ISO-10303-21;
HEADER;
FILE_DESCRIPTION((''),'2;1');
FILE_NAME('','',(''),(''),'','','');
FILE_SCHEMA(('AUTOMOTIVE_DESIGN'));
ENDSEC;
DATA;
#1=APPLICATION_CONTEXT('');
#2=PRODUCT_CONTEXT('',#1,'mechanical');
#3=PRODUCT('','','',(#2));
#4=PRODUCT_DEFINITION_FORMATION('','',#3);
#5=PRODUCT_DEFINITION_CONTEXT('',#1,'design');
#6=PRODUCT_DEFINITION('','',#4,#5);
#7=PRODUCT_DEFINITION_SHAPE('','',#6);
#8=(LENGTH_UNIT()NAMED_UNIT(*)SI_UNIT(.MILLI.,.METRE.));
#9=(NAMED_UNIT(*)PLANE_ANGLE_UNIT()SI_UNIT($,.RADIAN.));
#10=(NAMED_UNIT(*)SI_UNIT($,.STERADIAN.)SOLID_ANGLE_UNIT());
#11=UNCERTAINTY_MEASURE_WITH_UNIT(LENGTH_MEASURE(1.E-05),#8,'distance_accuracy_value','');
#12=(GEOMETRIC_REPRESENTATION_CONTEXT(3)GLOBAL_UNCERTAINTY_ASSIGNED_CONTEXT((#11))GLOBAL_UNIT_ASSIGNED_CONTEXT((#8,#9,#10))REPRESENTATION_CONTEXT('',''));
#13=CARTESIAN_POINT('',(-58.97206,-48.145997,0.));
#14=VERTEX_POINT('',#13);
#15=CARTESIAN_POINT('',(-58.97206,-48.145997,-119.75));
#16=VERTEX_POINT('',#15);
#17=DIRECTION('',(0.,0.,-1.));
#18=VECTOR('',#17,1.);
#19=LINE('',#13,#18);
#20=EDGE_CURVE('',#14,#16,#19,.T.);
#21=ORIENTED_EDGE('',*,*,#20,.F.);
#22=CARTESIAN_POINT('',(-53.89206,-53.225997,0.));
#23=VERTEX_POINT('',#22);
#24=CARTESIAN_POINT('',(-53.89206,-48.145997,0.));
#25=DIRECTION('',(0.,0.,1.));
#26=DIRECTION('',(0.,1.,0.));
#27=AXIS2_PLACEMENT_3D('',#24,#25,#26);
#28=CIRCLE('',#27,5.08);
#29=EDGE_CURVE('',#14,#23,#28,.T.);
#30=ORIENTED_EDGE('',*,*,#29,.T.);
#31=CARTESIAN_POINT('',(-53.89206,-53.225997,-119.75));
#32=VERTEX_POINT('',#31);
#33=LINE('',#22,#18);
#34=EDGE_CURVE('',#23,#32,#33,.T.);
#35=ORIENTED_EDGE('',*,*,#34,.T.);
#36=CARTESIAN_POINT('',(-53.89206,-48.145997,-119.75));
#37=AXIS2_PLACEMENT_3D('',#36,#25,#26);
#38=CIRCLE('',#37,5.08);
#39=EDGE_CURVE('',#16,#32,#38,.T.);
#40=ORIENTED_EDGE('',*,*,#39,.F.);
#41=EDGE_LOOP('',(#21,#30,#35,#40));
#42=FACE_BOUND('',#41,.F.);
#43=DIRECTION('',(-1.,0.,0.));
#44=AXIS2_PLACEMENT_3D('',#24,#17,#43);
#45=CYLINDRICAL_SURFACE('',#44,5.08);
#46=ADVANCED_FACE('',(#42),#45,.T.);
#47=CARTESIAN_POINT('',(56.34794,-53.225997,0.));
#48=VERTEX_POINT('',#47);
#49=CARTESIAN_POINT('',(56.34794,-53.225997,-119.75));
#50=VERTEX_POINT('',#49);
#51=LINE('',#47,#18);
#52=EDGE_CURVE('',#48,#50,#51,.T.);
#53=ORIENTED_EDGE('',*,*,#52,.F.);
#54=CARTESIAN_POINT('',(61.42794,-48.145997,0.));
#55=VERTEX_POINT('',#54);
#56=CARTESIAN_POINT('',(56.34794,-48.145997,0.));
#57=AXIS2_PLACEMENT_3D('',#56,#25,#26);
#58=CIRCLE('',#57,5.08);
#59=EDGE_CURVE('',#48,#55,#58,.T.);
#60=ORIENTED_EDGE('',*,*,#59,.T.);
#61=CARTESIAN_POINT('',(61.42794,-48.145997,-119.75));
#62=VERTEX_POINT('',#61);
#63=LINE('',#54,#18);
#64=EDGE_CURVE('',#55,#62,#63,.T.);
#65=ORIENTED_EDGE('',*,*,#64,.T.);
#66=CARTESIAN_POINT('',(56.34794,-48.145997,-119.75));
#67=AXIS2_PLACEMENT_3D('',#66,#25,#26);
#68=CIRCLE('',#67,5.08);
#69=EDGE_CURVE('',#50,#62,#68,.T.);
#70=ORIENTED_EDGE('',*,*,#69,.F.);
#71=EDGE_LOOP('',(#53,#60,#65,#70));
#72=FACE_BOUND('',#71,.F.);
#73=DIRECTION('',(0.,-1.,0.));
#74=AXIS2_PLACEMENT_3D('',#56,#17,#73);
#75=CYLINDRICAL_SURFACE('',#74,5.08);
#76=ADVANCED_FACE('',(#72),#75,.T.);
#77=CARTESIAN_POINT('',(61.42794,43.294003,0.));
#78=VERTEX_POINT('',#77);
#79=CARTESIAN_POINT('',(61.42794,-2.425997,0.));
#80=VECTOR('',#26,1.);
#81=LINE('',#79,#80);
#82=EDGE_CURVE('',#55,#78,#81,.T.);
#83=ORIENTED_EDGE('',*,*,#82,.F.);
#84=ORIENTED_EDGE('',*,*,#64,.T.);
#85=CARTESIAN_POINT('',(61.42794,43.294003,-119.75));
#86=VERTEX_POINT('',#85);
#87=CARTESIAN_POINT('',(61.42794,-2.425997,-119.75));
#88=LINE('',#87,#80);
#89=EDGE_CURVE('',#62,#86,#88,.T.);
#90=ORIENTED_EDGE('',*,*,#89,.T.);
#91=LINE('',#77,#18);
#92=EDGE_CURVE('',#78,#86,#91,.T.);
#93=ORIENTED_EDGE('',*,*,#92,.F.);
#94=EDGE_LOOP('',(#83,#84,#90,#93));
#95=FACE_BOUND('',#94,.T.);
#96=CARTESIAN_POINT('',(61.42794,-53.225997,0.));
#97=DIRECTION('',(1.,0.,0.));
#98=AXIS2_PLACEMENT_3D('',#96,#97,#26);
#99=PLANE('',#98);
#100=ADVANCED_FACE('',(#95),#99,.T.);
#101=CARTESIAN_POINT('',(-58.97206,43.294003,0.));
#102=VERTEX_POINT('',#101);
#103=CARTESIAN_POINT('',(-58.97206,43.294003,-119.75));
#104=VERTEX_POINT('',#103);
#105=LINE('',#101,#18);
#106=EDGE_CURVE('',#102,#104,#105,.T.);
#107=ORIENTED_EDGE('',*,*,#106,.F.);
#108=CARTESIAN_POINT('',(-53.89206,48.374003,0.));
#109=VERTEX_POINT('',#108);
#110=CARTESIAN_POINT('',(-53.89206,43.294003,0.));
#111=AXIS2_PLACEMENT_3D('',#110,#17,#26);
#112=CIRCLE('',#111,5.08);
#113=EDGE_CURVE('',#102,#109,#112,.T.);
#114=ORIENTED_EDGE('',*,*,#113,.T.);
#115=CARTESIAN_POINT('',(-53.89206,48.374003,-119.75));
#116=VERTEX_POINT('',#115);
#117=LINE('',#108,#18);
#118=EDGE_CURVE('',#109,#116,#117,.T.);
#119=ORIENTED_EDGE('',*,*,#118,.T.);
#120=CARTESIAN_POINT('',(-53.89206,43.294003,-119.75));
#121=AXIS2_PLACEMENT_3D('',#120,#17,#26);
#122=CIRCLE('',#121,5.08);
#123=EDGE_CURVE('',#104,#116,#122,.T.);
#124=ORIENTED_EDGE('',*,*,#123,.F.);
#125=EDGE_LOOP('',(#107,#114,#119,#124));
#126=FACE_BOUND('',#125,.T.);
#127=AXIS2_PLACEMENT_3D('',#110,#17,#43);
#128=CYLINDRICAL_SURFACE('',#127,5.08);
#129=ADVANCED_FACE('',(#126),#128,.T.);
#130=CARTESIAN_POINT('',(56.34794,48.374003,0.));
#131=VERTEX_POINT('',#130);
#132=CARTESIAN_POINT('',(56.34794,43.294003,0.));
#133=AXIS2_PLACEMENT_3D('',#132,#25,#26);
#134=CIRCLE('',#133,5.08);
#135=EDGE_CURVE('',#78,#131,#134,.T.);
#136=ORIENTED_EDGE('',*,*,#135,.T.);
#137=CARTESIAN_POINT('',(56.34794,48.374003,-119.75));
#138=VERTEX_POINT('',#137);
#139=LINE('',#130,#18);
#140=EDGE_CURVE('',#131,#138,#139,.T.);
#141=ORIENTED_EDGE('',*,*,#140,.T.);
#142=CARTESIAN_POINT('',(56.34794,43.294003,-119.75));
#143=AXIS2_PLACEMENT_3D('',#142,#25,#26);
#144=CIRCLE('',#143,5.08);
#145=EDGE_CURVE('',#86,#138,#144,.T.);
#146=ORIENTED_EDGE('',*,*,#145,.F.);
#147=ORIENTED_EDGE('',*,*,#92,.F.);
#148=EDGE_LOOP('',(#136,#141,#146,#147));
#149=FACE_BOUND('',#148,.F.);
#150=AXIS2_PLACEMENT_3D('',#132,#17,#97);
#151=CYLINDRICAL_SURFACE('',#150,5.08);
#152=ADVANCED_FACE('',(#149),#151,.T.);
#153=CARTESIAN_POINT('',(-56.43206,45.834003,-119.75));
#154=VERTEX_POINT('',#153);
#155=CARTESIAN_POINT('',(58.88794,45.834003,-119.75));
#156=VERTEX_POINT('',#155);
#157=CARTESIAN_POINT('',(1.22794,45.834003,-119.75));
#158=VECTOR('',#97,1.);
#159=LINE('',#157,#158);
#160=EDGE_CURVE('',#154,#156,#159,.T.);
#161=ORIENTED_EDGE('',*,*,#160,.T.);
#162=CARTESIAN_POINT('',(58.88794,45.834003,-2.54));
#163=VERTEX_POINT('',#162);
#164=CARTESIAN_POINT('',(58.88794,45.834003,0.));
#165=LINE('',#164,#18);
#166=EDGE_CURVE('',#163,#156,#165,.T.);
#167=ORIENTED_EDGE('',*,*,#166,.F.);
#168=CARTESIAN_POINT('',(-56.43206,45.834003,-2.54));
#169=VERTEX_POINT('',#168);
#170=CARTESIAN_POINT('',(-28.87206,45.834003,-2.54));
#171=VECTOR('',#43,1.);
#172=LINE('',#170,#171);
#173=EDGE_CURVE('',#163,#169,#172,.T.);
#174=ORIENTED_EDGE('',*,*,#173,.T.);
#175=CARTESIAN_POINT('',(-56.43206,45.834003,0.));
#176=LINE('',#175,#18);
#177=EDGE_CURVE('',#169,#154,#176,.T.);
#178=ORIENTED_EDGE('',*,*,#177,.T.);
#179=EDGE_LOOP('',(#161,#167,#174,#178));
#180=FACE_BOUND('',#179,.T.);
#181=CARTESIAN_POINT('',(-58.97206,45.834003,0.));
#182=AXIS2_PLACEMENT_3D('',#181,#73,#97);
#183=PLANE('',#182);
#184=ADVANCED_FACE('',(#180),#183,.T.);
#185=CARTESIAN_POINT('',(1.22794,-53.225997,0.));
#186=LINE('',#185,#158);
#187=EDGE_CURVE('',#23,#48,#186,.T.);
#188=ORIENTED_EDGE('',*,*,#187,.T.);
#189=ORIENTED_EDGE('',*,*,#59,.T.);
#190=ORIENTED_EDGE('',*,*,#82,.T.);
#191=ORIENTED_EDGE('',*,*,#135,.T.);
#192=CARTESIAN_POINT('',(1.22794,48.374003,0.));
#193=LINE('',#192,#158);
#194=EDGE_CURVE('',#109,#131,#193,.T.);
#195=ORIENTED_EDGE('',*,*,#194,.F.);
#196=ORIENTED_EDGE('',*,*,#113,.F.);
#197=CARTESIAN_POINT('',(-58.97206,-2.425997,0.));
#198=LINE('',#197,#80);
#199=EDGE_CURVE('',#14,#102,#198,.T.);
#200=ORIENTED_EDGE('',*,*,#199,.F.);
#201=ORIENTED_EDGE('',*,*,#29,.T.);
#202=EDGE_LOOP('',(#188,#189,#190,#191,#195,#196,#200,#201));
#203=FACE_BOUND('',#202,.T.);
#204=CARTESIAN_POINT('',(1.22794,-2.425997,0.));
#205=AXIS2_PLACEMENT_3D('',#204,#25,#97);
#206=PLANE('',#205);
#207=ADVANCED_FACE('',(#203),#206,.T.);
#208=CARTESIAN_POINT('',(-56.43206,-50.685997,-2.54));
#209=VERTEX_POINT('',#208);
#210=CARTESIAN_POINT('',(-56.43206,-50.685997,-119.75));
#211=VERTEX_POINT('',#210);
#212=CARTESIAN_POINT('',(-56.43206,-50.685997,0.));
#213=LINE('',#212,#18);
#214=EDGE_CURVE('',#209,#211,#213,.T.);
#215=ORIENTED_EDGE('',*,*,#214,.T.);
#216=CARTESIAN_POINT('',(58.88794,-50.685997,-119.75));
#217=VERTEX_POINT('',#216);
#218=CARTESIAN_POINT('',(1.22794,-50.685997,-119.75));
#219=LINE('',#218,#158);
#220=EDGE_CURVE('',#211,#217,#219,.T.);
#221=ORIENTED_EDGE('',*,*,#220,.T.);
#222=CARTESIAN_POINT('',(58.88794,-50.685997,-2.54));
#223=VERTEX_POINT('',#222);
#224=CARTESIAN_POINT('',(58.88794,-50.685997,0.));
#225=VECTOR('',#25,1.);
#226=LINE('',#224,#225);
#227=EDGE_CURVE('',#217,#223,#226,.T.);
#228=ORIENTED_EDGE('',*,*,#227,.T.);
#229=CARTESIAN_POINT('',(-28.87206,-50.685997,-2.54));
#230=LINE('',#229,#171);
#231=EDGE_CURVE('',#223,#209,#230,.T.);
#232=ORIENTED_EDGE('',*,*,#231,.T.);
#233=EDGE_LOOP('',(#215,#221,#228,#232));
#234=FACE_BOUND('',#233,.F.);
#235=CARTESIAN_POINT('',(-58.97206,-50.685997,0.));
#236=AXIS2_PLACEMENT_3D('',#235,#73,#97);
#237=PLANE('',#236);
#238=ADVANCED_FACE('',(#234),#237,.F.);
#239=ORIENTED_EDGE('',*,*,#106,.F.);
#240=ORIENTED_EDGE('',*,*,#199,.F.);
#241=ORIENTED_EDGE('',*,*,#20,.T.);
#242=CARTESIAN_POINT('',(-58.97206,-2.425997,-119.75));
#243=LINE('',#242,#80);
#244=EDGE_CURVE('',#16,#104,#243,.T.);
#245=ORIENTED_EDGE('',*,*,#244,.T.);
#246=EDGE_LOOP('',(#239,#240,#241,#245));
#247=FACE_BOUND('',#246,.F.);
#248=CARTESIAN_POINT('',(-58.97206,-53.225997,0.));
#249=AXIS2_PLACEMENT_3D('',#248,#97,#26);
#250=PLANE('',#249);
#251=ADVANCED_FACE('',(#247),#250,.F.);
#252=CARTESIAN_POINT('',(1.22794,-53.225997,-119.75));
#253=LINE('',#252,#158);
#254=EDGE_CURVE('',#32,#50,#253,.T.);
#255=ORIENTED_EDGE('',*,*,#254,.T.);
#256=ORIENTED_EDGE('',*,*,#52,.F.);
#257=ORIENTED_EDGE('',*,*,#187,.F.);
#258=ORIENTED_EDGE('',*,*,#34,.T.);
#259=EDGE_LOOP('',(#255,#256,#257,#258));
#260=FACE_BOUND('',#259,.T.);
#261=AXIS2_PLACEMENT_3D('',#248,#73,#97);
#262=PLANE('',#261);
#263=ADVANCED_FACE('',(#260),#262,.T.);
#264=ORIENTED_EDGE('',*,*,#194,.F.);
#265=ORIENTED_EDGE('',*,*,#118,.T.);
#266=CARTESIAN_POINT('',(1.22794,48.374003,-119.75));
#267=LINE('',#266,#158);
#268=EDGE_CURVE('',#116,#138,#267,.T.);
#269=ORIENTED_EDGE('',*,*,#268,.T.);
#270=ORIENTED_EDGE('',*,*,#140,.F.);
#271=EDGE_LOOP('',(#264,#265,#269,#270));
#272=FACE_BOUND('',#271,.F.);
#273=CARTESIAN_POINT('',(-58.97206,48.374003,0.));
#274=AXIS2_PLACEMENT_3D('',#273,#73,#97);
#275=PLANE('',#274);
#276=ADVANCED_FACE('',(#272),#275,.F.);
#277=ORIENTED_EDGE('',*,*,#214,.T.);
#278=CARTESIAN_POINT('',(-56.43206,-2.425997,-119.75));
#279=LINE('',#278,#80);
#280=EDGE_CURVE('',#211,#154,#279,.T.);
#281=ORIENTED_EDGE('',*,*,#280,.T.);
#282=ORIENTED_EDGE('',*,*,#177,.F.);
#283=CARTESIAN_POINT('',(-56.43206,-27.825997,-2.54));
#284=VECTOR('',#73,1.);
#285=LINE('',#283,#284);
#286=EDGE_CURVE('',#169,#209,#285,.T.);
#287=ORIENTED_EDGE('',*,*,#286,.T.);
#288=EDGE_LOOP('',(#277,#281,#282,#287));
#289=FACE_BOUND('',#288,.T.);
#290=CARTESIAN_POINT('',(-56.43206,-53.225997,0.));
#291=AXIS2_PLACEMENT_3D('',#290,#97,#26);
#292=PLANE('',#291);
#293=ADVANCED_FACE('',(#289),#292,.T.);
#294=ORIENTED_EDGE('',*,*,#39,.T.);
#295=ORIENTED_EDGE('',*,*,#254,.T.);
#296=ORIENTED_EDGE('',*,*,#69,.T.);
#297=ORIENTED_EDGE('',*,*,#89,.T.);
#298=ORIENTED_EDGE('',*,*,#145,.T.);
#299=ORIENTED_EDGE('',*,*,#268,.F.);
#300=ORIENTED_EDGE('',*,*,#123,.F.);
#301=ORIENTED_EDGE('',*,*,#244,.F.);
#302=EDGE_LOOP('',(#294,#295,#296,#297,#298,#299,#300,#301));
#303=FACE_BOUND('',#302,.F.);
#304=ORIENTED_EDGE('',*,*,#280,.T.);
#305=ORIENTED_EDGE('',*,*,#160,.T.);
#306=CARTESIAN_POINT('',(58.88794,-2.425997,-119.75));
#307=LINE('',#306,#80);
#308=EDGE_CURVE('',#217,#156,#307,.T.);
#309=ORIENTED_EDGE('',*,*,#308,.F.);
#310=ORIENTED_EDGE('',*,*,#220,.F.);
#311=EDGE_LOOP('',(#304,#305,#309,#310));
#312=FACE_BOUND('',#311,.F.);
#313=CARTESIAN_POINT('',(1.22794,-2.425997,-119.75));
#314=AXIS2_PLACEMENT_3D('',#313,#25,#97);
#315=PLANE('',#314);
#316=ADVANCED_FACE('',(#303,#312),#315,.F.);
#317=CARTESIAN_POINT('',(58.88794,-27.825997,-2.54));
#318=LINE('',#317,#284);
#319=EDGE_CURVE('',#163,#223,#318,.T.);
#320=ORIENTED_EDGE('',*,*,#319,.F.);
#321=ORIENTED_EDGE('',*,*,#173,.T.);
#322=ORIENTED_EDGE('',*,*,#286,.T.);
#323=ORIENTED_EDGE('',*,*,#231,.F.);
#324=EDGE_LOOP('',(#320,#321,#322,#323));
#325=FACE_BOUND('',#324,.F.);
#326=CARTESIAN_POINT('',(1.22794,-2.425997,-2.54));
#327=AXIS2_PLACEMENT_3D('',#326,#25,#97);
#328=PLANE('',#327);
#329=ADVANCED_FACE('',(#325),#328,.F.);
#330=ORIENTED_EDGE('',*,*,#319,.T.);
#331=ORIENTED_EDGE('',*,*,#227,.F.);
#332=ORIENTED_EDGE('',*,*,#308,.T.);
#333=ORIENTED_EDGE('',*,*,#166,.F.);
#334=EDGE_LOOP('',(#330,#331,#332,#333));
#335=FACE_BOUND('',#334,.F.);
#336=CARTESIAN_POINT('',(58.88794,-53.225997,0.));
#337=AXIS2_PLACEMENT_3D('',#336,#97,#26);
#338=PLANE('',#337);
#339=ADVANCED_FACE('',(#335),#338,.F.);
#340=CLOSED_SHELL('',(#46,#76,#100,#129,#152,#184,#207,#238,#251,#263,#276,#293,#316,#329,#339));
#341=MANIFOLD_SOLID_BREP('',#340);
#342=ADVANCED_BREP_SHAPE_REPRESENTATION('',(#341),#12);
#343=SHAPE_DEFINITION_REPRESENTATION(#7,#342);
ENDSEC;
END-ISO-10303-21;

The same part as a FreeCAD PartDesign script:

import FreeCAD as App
import Part
import Sketcher
Q = App.Units.Quantity


def edges_at(feature, points):
    """Names of the edges that pass closest to the given points."""
    edges = feature.Shape.Edges
    near = lambda p: min(range(len(edges)), key=lambda i: edges[i].distToShape(Part.Vertex(*p))[0])
    return sorted({f"Edge{near(p) + 1}" for p in points})


def faces_at(feature, points):
    """Names of the faces that lie closest to the given points."""
    faces = feature.Shape.Faces
    near = lambda p: min(range(len(faces)), key=lambda i: faces[i].distToShape(Part.Vertex(*p))[0])
    return sorted({f"Face{near(p) + 1}" for p in points})

doc = App.newDocument("Part")
body = doc.addObject("PartDesign::Body", "Body")

# Sketch on XY plane
sketch1 = body.newObject("Sketcher::SketchObject", "Sketch")
sketch1.AttachmentSupport = (doc.getObject("XY_Plane"), [""])
sketch1.MapMode = "FlatFace"
sketch1.addGeometry(Part.LineSegment(App.Vector(-59, 48, 0), App.Vector(-59, -53, 0)), False)
sketch1.addGeometry(Part.LineSegment(App.Vector(-59, -53, 0), App.Vector(61, -53, 0)), False)
sketch1.addGeometry(Part.LineSegment(App.Vector(61, -53, 0), App.Vector(61, 48, 0)), False)
sketch1.addGeometry(Part.LineSegment(App.Vector(61, 48, 0), App.Vector(-59, 48, 0)), False)
sketch1.addConstraint(Sketcher.Constraint("Coincident", 0, 2, 1, 1))
sketch1.addConstraint(Sketcher.Constraint("Coincident", 1, 2, 2, 1))
sketch1.addConstraint(Sketcher.Constraint("Coincident", 2, 2, 3, 1))
sketch1.addConstraint(Sketcher.Constraint("Coincident", 3, 2, 0, 1))
sketch1.addConstraint(Sketcher.Constraint("Vertical", 0))
sketch1.addConstraint(Sketcher.Constraint("Horizontal", 1))
sketch1.addConstraint(Sketcher.Constraint("Vertical", 2))
sketch1.addConstraint(Sketcher.Constraint("Horizontal", 3))
sketch1.addConstraint(Sketcher.Constraint("DistanceY", 0, 2, 0, 1, Q("4 in")))
sketch1.addConstraint(Sketcher.Constraint("DistanceX", 1, 1, 1, 2, Q("120.4 mm")))
sketch1.addConstraint(Sketcher.Constraint("DistanceX", 0, 2, -1, 1, Q("58.97206 mm")))
sketch1.addConstraint(Sketcher.Constraint("DistanceY", 0, 2, -1, 1, Q("53.225997 mm")))
pad1 = body.newObject("PartDesign::Pad", "Pad")
pad1.Profile = sketch1
pad1.Length = 119.75
pad1.Reversed = True
doc.recompute()

thickness = body.newObject("PartDesign::Thickness", "Thickness")
thickness.Base = (pad1, faces_at(pad1, [(1.228, -2.426, -119.75)]))
thickness.Value = Q("0.1 in")
thickness.Reversed = True
thickness.Join = "Arc"
doc.recompute()

fillet = body.newObject("PartDesign::Fillet", "Fillet")
fillet.Base = (thickness, edges_at(thickness, [
    (61.428, 48.374, -59.875),
    (-58.972, 48.374, -59.875),
    (-58.972, -53.226, -59.875),
    (61.428, -53.226, -59.875),
]))
fillet.Radius = Q("0.2 in")

doc.recompute()
